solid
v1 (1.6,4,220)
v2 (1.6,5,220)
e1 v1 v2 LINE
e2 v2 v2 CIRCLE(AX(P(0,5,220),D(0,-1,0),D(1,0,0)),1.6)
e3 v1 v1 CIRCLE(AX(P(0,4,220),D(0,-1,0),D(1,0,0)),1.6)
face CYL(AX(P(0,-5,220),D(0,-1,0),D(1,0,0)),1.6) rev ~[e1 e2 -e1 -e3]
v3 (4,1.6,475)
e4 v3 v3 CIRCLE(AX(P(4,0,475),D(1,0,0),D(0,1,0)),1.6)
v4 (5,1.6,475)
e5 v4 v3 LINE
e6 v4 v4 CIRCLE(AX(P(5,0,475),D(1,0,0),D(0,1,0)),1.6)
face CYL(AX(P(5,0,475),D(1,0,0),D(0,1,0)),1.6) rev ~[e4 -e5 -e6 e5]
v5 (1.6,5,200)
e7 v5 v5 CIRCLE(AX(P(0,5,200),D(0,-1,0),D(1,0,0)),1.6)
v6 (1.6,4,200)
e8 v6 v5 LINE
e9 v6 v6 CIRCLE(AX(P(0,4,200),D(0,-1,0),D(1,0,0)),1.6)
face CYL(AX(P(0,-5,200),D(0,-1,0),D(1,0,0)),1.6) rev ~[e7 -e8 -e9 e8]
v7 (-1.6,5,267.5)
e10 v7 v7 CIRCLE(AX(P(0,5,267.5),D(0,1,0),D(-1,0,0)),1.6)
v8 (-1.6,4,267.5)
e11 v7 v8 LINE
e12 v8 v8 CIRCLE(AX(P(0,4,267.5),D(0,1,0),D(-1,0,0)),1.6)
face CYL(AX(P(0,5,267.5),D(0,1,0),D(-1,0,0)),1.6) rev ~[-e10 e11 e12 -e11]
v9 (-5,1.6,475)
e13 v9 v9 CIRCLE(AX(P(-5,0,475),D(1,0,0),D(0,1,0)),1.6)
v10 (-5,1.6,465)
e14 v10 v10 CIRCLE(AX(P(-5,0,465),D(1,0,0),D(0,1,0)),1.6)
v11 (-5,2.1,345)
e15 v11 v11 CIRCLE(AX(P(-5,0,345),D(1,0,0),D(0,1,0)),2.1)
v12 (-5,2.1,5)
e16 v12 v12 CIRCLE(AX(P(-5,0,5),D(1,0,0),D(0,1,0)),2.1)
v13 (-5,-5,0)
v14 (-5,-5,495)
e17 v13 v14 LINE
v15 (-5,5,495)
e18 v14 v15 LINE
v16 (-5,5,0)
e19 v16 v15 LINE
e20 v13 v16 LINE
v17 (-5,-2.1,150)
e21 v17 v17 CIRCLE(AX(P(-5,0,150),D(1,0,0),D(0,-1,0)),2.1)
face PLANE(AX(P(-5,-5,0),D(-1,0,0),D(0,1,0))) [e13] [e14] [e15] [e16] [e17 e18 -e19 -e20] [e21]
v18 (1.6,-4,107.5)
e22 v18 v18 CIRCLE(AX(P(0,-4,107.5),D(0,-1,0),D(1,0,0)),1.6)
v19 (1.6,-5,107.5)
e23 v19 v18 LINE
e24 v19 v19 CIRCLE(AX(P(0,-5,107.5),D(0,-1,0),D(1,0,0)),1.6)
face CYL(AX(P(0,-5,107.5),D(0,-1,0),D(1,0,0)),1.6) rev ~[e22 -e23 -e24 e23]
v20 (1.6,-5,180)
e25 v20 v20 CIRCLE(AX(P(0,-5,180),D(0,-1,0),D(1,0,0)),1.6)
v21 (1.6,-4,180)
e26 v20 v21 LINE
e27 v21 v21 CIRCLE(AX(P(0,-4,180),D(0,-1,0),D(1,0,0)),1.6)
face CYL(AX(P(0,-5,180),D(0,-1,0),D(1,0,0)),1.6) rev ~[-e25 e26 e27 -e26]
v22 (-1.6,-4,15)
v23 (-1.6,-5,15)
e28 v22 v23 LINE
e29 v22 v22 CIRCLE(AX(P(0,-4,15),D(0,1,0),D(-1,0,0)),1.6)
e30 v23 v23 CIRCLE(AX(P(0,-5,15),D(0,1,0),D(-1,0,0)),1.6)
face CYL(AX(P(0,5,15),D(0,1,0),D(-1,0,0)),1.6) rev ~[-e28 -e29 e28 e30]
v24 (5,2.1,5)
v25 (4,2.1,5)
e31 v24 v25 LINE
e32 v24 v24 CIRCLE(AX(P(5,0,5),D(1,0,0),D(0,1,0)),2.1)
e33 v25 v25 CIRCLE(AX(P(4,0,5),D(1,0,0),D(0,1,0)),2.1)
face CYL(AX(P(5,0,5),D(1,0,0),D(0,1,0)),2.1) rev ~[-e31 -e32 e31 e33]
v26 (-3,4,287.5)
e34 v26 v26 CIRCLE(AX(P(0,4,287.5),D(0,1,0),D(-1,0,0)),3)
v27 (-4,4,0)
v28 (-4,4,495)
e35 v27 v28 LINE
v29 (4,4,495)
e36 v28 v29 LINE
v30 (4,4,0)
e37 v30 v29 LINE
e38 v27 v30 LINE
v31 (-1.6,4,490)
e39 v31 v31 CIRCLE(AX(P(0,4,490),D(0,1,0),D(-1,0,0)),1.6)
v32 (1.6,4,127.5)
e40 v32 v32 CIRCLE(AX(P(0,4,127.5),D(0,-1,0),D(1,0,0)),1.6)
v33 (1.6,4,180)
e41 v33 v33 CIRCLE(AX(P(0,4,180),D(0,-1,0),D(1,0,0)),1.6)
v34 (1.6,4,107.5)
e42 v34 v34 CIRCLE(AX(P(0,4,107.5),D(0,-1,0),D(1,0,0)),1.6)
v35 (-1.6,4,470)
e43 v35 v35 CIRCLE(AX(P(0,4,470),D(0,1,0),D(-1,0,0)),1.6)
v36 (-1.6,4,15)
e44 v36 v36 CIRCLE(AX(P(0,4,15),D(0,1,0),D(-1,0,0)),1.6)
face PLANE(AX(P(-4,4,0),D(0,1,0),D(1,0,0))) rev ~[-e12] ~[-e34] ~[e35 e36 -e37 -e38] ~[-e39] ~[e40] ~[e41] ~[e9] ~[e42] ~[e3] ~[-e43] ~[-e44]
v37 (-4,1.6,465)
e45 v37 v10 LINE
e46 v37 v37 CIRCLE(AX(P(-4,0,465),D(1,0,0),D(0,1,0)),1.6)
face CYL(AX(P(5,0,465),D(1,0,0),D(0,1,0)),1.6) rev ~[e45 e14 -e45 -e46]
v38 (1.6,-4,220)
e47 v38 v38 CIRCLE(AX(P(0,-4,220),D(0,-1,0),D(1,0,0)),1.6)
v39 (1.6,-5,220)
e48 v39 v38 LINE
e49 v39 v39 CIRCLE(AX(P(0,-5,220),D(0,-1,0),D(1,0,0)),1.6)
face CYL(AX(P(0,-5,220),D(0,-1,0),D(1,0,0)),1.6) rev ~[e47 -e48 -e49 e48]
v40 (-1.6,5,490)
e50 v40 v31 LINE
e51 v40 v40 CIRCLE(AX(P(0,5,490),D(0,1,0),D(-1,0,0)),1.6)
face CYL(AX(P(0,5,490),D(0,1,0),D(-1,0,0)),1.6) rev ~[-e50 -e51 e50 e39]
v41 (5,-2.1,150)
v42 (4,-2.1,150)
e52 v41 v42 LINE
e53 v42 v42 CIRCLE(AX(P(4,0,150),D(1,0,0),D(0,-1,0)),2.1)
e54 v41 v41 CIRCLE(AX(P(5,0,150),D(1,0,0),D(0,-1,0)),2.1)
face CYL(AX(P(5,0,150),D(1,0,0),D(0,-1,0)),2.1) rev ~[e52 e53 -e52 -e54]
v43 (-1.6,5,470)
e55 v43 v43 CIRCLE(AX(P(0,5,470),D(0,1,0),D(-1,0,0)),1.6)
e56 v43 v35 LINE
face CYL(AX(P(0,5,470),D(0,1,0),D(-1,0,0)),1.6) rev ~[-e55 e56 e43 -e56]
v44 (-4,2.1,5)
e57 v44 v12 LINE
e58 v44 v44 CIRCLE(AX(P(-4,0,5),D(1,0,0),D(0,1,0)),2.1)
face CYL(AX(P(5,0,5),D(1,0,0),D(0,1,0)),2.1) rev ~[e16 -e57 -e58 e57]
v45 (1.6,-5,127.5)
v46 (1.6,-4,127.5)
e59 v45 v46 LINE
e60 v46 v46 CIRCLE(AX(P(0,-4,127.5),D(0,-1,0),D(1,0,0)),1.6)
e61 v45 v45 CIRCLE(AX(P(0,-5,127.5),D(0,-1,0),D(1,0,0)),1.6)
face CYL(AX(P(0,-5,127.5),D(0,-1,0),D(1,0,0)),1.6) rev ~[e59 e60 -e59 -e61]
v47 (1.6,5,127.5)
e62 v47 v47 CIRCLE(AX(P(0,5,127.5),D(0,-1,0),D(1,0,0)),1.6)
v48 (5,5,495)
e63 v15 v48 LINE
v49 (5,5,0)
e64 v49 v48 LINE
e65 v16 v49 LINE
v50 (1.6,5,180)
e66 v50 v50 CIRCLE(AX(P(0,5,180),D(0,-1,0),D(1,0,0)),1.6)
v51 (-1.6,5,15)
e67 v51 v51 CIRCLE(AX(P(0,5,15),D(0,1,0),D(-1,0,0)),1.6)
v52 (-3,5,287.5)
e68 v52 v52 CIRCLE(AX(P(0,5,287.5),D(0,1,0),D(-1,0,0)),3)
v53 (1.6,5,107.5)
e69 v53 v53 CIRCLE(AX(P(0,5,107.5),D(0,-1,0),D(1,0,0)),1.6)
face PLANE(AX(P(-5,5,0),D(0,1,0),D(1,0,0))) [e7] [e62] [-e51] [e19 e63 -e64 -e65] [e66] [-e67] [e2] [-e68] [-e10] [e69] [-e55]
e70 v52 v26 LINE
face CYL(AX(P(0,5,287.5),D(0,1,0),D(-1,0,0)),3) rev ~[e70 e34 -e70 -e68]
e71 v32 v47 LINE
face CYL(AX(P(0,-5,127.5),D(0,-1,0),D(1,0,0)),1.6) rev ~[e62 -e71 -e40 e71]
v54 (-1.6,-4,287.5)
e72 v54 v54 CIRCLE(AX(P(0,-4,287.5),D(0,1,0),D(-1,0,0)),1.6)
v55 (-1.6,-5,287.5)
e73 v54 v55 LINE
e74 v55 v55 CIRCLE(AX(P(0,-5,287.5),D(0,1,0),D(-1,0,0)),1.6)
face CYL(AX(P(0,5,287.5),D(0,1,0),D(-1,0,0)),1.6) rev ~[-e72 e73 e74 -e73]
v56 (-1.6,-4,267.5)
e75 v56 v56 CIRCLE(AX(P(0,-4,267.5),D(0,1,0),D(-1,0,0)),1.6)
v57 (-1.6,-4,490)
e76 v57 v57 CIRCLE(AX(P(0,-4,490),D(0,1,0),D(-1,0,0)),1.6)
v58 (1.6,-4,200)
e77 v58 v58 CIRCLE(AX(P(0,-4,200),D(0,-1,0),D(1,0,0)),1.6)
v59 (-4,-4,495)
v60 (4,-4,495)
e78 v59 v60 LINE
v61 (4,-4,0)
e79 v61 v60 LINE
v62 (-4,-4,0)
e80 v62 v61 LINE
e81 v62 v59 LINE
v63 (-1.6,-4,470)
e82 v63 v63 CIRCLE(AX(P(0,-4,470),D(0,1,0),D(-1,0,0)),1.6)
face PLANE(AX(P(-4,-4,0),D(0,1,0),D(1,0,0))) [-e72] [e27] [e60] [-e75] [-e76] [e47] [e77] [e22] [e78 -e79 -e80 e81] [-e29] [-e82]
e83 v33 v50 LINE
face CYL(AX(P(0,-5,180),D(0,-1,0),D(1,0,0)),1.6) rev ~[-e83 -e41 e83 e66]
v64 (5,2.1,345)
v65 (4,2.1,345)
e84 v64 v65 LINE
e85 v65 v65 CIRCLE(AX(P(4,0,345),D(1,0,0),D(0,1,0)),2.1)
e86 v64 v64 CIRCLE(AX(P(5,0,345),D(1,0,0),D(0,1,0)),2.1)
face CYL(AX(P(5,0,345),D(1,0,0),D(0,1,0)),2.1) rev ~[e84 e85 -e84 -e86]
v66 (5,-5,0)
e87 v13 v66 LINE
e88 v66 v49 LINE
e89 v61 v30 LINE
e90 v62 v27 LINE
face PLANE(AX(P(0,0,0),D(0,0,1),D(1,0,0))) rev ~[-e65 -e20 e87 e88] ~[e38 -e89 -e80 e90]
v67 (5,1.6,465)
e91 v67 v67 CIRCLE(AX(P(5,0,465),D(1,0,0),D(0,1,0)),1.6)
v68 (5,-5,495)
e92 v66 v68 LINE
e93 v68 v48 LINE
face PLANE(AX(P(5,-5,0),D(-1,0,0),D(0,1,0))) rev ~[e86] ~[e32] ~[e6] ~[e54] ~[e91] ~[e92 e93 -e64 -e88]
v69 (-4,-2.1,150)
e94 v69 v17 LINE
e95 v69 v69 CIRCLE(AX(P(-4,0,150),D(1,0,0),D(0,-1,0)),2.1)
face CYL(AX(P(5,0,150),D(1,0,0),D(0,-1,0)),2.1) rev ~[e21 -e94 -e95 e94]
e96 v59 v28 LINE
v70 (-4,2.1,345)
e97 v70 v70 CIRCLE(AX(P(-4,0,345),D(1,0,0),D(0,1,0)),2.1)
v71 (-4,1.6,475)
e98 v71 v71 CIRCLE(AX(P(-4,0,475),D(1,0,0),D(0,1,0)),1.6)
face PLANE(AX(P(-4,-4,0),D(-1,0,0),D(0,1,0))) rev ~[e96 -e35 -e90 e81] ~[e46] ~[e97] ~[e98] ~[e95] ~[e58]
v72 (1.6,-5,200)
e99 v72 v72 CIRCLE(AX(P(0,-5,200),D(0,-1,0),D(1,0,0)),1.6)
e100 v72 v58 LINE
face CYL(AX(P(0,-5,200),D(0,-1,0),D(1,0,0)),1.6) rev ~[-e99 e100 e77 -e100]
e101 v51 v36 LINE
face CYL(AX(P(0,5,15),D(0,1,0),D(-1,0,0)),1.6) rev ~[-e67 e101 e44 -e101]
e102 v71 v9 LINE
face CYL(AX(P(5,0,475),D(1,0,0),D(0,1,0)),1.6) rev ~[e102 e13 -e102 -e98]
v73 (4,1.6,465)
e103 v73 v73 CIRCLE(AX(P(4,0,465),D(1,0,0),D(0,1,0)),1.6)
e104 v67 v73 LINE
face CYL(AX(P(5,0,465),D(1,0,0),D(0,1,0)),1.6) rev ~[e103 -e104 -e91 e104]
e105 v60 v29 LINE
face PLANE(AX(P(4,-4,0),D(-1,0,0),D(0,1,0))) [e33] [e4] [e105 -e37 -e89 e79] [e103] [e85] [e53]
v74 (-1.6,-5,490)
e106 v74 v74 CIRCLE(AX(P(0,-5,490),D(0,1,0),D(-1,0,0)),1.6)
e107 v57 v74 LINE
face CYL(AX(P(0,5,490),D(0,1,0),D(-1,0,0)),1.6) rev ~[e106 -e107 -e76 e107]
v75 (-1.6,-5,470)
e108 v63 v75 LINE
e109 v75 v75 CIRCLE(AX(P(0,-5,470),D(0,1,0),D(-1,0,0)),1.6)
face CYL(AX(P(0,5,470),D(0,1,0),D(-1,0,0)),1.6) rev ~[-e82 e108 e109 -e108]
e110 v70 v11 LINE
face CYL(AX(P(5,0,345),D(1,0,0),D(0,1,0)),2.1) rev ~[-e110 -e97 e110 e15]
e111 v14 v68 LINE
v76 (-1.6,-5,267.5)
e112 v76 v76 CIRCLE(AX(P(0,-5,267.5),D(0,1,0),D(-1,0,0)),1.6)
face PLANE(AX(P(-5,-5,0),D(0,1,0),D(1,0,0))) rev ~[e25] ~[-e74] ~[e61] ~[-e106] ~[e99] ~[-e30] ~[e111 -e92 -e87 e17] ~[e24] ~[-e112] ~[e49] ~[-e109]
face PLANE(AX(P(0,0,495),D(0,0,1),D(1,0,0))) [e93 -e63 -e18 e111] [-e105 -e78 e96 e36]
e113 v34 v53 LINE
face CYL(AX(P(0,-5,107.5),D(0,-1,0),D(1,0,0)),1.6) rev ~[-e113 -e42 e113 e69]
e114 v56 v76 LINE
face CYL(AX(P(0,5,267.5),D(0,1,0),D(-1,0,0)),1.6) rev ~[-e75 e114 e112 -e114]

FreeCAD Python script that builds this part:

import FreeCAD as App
import Part
import Sketcher

doc = App.newDocument("Part")
body = doc.addObject("PartDesign::Body", "Body")

# Sketch on XY plane
sketch1 = doc.addObject("Sketcher::SketchObject", "Sketch")
body.addObject(sketch1)
sketch1.AttachmentSupport = (doc.XY_Plane, [""])
sketch1.MapMode = "FlatFace"
sketch1.addGeometry(Part.LineSegment(App.Vector(-5, 5, 0), App.Vector(-5, -5, 0)), False)
sketch1.addGeometry(Part.LineSegment(App.Vector(-5, -5, 0), App.Vector(5, -5, 0)), False)
sketch1.addGeometry(Part.LineSegment(App.Vector(5, -5, 0), App.Vector(5, 5, 0)), False)
sketch1.addGeometry(Part.LineSegment(App.Vector(5, 5, 0), App.Vector(-5, 5, 0)), False)
sketch1.addGeometry(Part.LineSegment(App.Vector(4, -4, 0), App.Vector(-4, -4, 0)), False)
sketch1.addGeometry(Part.LineSegment(App.Vector(-4, -4, 0), App.Vector(-4, 4, 0)), False)
sketch1.addGeometry(Part.LineSegment(App.Vector(-4, 4, 0), App.Vector(4, 4, 0)), False)
sketch1.addGeometry(Part.LineSegment(App.Vector(4, 4, 0), App.Vector(4, -4, 0)), False)
sketch1.addConstraint(Sketcher.Constraint("Coincident", 0, 2, 1, 1))
sketch1.addConstraint(Sketcher.Constraint("Coincident", 1, 2, 2, 1))
sketch1.addConstraint(Sketcher.Constraint("Coincident", 2, 2, 3, 1))
sketch1.addConstraint(Sketcher.Constraint("Coincident", 3, 2, 0, 1))
sketch1.addConstraint(Sketcher.Constraint("Coincident", 4, 2, 5, 1))
sketch1.addConstraint(Sketcher.Constraint("Coincident", 5, 2, 6, 1))
sketch1.addConstraint(Sketcher.Constraint("Coincident", 6, 2, 7, 1))
sketch1.addConstraint(Sketcher.Constraint("Coincident", 7, 2, 4, 1))
sketch1.addConstraint(Sketcher.Constraint("Vertical", 0))
sketch1.addConstraint(Sketcher.Constraint("Horizontal", 1))
sketch1.addConstraint(Sketcher.Constraint("Vertical", 2))
sketch1.addConstraint(Sketcher.Constraint("Horizontal", 3))
sketch1.addConstraint(Sketcher.Constraint("Horizontal", 4))
sketch1.addConstraint(Sketcher.Constraint("Vertical", 5))
sketch1.addConstraint(Sketcher.Constraint("Horizontal", 6))
sketch1.addConstraint(Sketcher.Constraint("Vertical", 7))
sketch1.addConstraint(Sketcher.Constraint("Symmetric", 0, 2, 2, 2, -1, 1))
sketch1.addConstraint(Sketcher.Constraint("Symmetric", 4, 2, 6, 2, -1, 1))
sketch1.addConstraint(Sketcher.Constraint("Equal", 3, 0))
sketch1.addConstraint(Sketcher.Constraint("Equal", 6, 5))
sketch1.addConstraint(Sketcher.Constraint("DistanceX", 1, 1, 1, 2, 10.0))
sketch1.addConstraint(Sketcher.Constraint("DistanceX", 4, 2, 4, 1, 8.0))
pad1 = doc.addObject("PartDesign::Pad", "Pad")
body.addObject(pad1)
pad1.Profile = sketch1
pad1.Length = 495

# Sketch on YZ plane
sketch2 = doc.addObject("Sketcher::SketchObject", "Sketch001")
body.addObject(sketch2)
sketch2.AttachmentSupport = (doc.YZ_Plane, [""])
sketch2.MapMode = "FlatFace"
sketch2.AttachmentOffset = App.Placement(App.Vector(0, 0, 5), App.Rotation())
sketch2.addGeometry(Part.Circle(App.Vector(0, 5, 0), App.Vector(0, 0, 1), 2.1), False)
sketch2.addConstraint(Sketcher.Constraint("PointOnObject", 0, 3, -2))
sketch2.addConstraint(Sketcher.Constraint("Diameter", 0, 4.2))
sketch2.addConstraint(Sketcher.Constraint("DistanceY", -1, 1, 0, 3, 5.0))
pocket1 = doc.addObject("PartDesign::Pocket", "Pocket")
body.addObject(pocket1)
pocket1.Profile = sketch2
pocket1.Type = "ThroughAll"

# Sketch on XZ plane
sketch3 = doc.addObject("Sketcher::SketchObject", "Sketch002")
body.addObject(sketch3)
sketch3.AttachmentSupport = (doc.XZ_Plane, [""])
sketch3.MapMode = "FlatFace"
sketch3.AttachmentOffset = App.Placement(App.Vector(0, 0, -5), App.Rotation())
sketch3.addGeometry(Part.Circle(App.Vector(0, 15, 0), App.Vector(0, 0, 1), 1.6), False)
sketch3.addGeometry(Part.Circle(App.Vector(0, 470, 0), App.Vector(0, 0, 1), 1.6), False)
sketch3.addGeometry(Part.Circle(App.Vector(0, 490, 0), App.Vector(0, 0, 1), 1.6), False)
sketch3.addGeometry(Part.Circle(App.Vector(0, 267.5, 0), App.Vector(0, 0, 1), 1.6), False)
sketch3.addGeometry(Part.Circle(App.Vector(0, 287.5, 0), App.Vector(0, 0, 1), 1.6), False)
sketch3.addConstraint(Sketcher.Constraint("Equal", 0, 1))
sketch3.addConstraint(Sketcher.Constraint("Equal", 1, 2))
sketch3.addConstraint(Sketcher.Constraint("Equal", 2, 3))
sketch3.addConstraint(Sketcher.Constraint("Equal", 3, 4))
sketch3.addConstraint(Sketcher.Constraint("PointOnObject", 0, 3, -2))
sketch3.addConstraint(Sketcher.Constraint("PointOnObject", 1, 3, -2))
sketch3.addConstraint(Sketcher.Constraint("PointOnObject", 2, 3, -2))
sketch3.addConstraint(Sketcher.Constraint("PointOnObject", 3, 3, -2))
sketch3.addConstraint(Sketcher.Constraint("PointOnObject", 4, 3, -2))
sketch3.addConstraint(Sketcher.Constraint("Diameter", 0, 3.2))
sketch3.addConstraint(Sketcher.Constraint("DistanceY", -1, 1, 0, 3, 15.0))
sketch3.addConstraint(Sketcher.Constraint("DistanceY", -1, 1, 1, 3, 470.0))
sketch3.addConstraint(Sketcher.Constraint("DistanceY", -1, 1, 2, 3, 490.0))
sketch3.addConstraint(Sketcher.Constraint("DistanceY", 3, 3, 4, 3, 20.0))
sketch3.addConstraint(Sketcher.Constraint("DistanceY", -1, 1, 3, 3, 267.5))
pocket2 = doc.addObject("PartDesign::Pocket", "Pocket001")
body.addObject(pocket2)
pocket2.Profile = sketch3
pocket2.Type = "ThroughAll"
pocket2.Reversed = True

# Sketch on YZ plane
sketch4 = doc.addObject("Sketcher::SketchObject", "Sketch003")
body.addObject(sketch4)
sketch4.AttachmentSupport = (doc.YZ_Plane, [""])
sketch4.MapMode = "FlatFace"
sketch4.AttachmentOffset = App.Placement(App.Vector(0, 0, 5), App.Rotation())
sketch4.addGeometry(Part.Circle(App.Vector(0, 475, 0), App.Vector(0, 0, 1), 1.6), False)
sketch4.addGeometry(Part.Circle(App.Vector(0, 465, 0), App.Vector(0, 0, 1), 1.6), False)
sketch4.addConstraint(Sketcher.Constraint("Equal", 0, 1))
sketch4.addConstraint(Sketcher.Constraint("PointOnObject", 0, 3, -2))
sketch4.addConstraint(Sketcher.Constraint("PointOnObject", 1, 3, -2))
sketch4.addConstraint(Sketcher.Constraint("Diameter", 0, 3.2))
sketch4.addConstraint(Sketcher.Constraint("DistanceY", -1, 1, 0, 3, 475.0))
sketch4.addConstraint(Sketcher.Constraint("DistanceY", -1, 1, 1, 3, 465.0))
pocket3 = doc.addObject("PartDesign::Pocket", "Pocket002")
body.addObject(pocket3)
pocket3.Profile = sketch4
pocket3.Type = "ThroughAll"

# Sketch on YZ plane
sketch5 = doc.addObject("Sketcher::SketchObject", "Sketch004")
body.addObject(sketch5)
sketch5.AttachmentSupport = (doc.YZ_Plane, [""])
sketch5.MapMode = "FlatFace"
sketch5.AttachmentOffset = App.Placement(App.Vector(0, 0, 5), App.Rotation())
sketch5.addGeometry(Part.Circle(App.Vector(0, 345, 0), App.Vector(0, 0, 1), 2.1), False)
sketch5.addGeometry(Part.Circle(App.Vector(0, 150, 0), App.Vector(0, 0, 1), 2.1), False)
sketch5.addConstraint(Sketcher.Constraint("Equal", 0, 1))
sketch5.addConstraint(Sketcher.Constraint("PointOnObject", 0, 3, -2))
sketch5.addConstraint(Sketcher.Constraint("PointOnObject", 1, 3, -2))
sketch5.addConstraint(Sketcher.Constraint("Diameter", 0, 4.2))
sketch5.addConstraint(Sketcher.Constraint("DistanceY", -1, 1, 0, 3, 345.0))
sketch5.addConstraint(Sketcher.Constraint("DistanceY", -1, 1, 1, 3, 150.0))
pocket4 = doc.addObject("PartDesign::Pocket", "Pocket003")
body.addObject(pocket4)
pocket4.Profile = sketch5
pocket4.Type = "ThroughAll"

# Sketch on XZ plane
sketch6 = doc.addObject("Sketcher::SketchObject", "Sketch005")
body.addObject(sketch6)
sketch6.AttachmentSupport = (doc.XZ_Plane, [""])
sketch6.MapMode = "FlatFace"
sketch6.AttachmentOffset = App.Placement(App.Vector(0, 0, -5), App.Rotation())
sketch6.addGeometry(Part.Circle(App.Vector(0, 287.5, 0), App.Vector(0, 0, 1), 3), False)
sketch6.addConstraint(Sketcher.Constraint("PointOnObject", 0, 3, -2))
sketch6.addConstraint(Sketcher.Constraint("Diameter", 0, 6.0))
sketch6.addConstraint(Sketcher.Constraint("DistanceY", -1, 1, 0, 3, 287.5))
pocket5 = doc.addObject("PartDesign::Pocket", "Pocket004")
body.addObject(pocket5)
pocket5.Profile = sketch6
pocket5.Length = 1
pocket5.Reversed = True

# Sketch on XZ plane
sketch7 = doc.addObject("Sketcher::SketchObject", "Sketch006")
body.addObject(sketch7)
sketch7.AttachmentSupport = (doc.XZ_Plane, [""])
sketch7.MapMode = "FlatFace"
sketch7.AttachmentOffset = App.Placement(App.Vector(0, 0, 5), App.Rotation())
sketch7.addGeometry(Part.Circle(App.Vector(0, 180, 0), App.Vector(0, 0, 1), 1.6), False)
sketch7.addGeometry(Part.Circle(App.Vector(0, 200, 0), App.Vector(0, 0, 1), 1.6), False)
sketch7.addGeometry(Part.Circle(App.Vector(0, 220, 0), App.Vector(0, 0, 1), 1.6), False)
sketch7.addConstraint(Sketcher.Constraint("Equal", 0, 1))
sketch7.addConstraint(Sketcher.Constraint("Equal", 1, 2))
sketch7.addConstraint(Sketcher.Constraint("PointOnObject", 0, 3, -2))
sketch7.addConstraint(Sketcher.Constraint("PointOnObject", 1, 3, -2))
sketch7.addConstraint(Sketcher.Constraint("PointOnObject", 2, 3, -2))
sketch7.addConstraint(Sketcher.Constraint("Diameter", 0, 3.2))
sketch7.addConstraint(Sketcher.Constraint("DistanceY", -1, 1, 0, 3, 180.0))
sketch7.addConstraint(Sketcher.Constraint("DistanceY", -1, 1, 1, 3, 200.0))
sketch7.addConstraint(Sketcher.Constraint("DistanceY", -1, 1, 2, 3, 220.0))
pocket6 = doc.addObject("PartDesign::Pocket", "Pocket005")
body.addObject(pocket6)
pocket6.Profile = sketch7
pocket6.Type = "ThroughAll"

# Sketch on XZ plane
sketch8 = doc.addObject("Sketcher::SketchObject", "Sketch007")
body.addObject(sketch8)
sketch8.AttachmentSupport = (doc.XZ_Plane, [""])
sketch8.MapMode = "FlatFace"
sketch8.AttachmentOffset = App.Placement(App.Vector(0, 0, 5), App.Rotation())
sketch8.addGeometry(Part.Circle(App.Vector(0, 127.5, 0), App.Vector(0, 0, 1), 1.6), False)
sketch8.addGeometry(Part.Circle(App.Vector(0, 107.5, 0), App.Vector(0, 0, 1), 1.6), False)
sketch8.addConstraint(Sketcher.Constraint("Equal", 0, 1))
sketch8.addConstraint(Sketcher.Constraint("PointOnObject", 0, 3, -2))
sketch8.addConstraint(Sketcher.Constraint("PointOnObject", 1, 3, -2))
sketch8.addConstraint(Sketcher.Constraint("Diameter", 0, 3.2))
sketch8.addConstraint(Sketcher.Constraint("DistanceY", 1, 3, 0, 3, 20.0))
sketch8.addConstraint(Sketcher.Constraint("DistanceY", -1, 1, 0, 3, 127.5))
pocket7 = doc.addObject("PartDesign::Pocket", "Pocket006")
body.addObject(pocket7)
pocket7.Profile = sketch8
pocket7.Type = "ThroughAll"

doc.recompute()
